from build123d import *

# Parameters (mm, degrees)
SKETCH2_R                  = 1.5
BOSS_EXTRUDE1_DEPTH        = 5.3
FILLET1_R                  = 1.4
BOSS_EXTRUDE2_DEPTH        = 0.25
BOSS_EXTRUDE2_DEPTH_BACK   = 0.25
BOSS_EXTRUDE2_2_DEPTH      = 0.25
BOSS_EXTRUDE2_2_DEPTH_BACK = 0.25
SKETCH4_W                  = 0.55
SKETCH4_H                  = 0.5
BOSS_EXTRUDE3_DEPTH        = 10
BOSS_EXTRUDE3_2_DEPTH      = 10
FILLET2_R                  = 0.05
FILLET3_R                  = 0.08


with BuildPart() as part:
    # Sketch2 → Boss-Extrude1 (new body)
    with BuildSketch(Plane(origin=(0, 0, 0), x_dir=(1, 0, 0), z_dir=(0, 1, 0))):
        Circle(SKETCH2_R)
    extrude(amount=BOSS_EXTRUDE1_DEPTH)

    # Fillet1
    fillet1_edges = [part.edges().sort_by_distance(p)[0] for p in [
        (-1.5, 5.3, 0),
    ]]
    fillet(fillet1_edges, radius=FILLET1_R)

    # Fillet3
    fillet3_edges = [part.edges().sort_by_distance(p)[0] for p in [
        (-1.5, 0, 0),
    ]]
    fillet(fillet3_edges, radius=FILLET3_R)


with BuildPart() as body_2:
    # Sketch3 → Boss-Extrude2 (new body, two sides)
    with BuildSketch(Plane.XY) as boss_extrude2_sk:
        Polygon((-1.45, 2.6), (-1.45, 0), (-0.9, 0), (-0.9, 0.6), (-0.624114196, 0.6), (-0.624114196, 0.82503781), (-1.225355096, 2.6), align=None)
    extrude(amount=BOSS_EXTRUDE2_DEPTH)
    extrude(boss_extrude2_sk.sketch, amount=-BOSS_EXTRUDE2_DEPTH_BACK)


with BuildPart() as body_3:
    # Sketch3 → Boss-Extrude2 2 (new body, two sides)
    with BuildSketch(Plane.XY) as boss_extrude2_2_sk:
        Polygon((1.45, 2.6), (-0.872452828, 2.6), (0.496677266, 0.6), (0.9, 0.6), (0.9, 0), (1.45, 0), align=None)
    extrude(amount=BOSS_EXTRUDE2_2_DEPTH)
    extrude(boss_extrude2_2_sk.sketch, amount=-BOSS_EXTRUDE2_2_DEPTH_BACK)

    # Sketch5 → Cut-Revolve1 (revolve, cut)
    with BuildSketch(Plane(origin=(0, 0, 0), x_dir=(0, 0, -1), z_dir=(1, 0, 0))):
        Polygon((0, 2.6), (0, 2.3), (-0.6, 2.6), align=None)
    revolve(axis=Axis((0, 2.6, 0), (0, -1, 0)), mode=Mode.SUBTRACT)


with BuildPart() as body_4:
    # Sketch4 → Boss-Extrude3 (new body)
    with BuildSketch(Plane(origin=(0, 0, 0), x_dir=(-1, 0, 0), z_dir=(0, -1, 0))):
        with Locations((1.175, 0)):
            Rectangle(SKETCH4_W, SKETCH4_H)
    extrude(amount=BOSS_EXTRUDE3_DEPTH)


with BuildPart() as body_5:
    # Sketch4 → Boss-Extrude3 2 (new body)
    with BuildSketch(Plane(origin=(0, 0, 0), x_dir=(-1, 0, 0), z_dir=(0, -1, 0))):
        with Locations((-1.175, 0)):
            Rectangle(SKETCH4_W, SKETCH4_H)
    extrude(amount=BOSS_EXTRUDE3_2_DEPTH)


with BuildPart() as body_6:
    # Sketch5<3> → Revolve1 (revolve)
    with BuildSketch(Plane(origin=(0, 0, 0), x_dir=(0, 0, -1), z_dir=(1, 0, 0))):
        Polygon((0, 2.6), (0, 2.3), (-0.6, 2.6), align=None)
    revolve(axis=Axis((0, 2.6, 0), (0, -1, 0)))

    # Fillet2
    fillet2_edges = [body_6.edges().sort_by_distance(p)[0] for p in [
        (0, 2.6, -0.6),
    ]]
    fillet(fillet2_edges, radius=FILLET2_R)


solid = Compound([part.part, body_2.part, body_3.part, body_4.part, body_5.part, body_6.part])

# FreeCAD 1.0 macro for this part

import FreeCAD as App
import Part
import Sketcher


def edges_at(feature, points):
    """Names of the edges that pass closest to the given points."""
    edges = feature.Shape.Edges
    near = lambda p: min(range(len(edges)), key=lambda i: edges[i].distToShape(Part.Vertex(*p))[0])
    return sorted({f"Edge{near(p) + 1}" for p in points})


def add_polygon(sketch, points):
    """Adds a closed chain of lines whose ends are joined by coincident constraints."""
    first, n = sketch.GeometryCount, len(points)
    for a, b in zip(points, points[1:] + points[:1]):
        sketch.addGeometry(Part.LineSegment(App.Vector(*a, 0), App.Vector(*b, 0)), False)
    for i in range(n):
        sketch.addConstraint(Sketcher.Constraint("Coincident", first + i, 2, first + (i + 1) % n, 1))

doc = App.newDocument("Part")
body = doc.addObject("PartDesign::Body", "Body")

# Sketch on XZ plane
sketch1 = body.newObject("Sketcher::SketchObject", "Sketch")
sketch1.AttachmentSupport = (doc.getObject("XZ_Plane"), [""])
sketch1.MapMode = "FlatFace"
sketch1.addGeometry(Part.Circle(App.Vector(0, 0, 0), App.Vector(0, 0, 1), 1.5), False)
sketch1.addConstraint([
    Sketcher.Constraint("Coincident", 0, 3, -1, 1),
    Sketcher.Constraint("Diameter", 0, 3.0),
])
pad1 = body.newObject("PartDesign::Pad", "Pad")
pad1.Profile = sketch1
pad1.Length = 5.3
pad1.Reversed = True
doc.recompute()

fillet = body.newObject("PartDesign::Fillet", "Fillet")
fillet.Base = (pad1, edges_at(pad1, [(-1.5, 5.3, 0)]))
fillet.Radius = 1.4
doc.recompute()

fillet2 = body.newObject("PartDesign::Fillet", "Fillet001")
fillet2.Base = (fillet, edges_at(fillet, [(-1.5, 0, 0)]))
fillet2.Radius = 0.08
body2 = doc.addObject("PartDesign::Body", "Body001")

# Sketch on XY plane
sketch2 = body2.newObject("Sketcher::SketchObject", "Sketch001")
sketch2.AttachmentSupport = (doc.getObject("XY_Plane001"), [""])
sketch2.MapMode = "FlatFace"
add_polygon(sketch2, [(-1.45, 2.6), (-1.45, 0), (-0.9, 0), (-0.9, 0.6), (-0.624114, 0.6), (-0.624114, 0.825038), (-1.225355, 2.6)])  # lines 0-6
sketch2.addConstraint([
    Sketcher.Constraint("Vertical", 0),
    Sketcher.Constraint("Horizontal", 1),
    Sketcher.Constraint("Vertical", 2),
    Sketcher.Constraint("Horizontal", 3),
    Sketcher.Constraint("Vertical", 4),
    Sketcher.Constraint("Horizontal", 6),
    Sketcher.Constraint("PointOnObject", 0, 2, -1),
    Sketcher.Constraint("DistanceY", 0, 2, 0, 1, 2.6),
    Sketcher.Constraint("DistanceY", 2, 1, 2, 2, 0.6),
    Sketcher.Constraint("DistanceX", 1, 1, 1, 2, 0.55),
    Sketcher.Constraint("DistanceX", 1, 2, -1, 1, 0.9),
    Sketcher.Constraint("Distance", 5, 1.874028),
    Sketcher.Constraint("DistanceX", 3, 1, 3, 2, 0.275886),
    Sketcher.Constraint("DistanceX", 6, 2, 6, 1, 0.224645),
])
pad2 = body2.newObject("PartDesign::Pad", "Pad001")
pad2.Profile = sketch2
pad2.Type = "TwoLengths"
pad2.Length = 0.25
pad2.Length2 = 0.25
body3 = doc.addObject("PartDesign::Body", "Body002")

# Sketch on XY plane
sketch3 = body3.newObject("Sketcher::SketchObject", "Sketch002")
sketch3.AttachmentSupport = (doc.getObject("XY_Plane002"), [""])
sketch3.MapMode = "FlatFace"
add_polygon(sketch3, [(1.45, 2.6), (-0.872453, 2.6), (0.496677, 0.6), (0.9, 0.6), (0.9, 0), (1.45, 0)])  # lines 0-5
sketch3.addConstraint([
    Sketcher.Constraint("Horizontal", 0),
    Sketcher.Constraint("Horizontal", 2),
    Sketcher.Constraint("Vertical", 3),
    Sketcher.Constraint("Horizontal", 4),
    Sketcher.Constraint("Vertical", 5),
    Sketcher.Constraint("PointOnObject", 3, 2, -1),
    Sketcher.Constraint("DistanceY", 3, 2, 3, 1, 0.6),
    Sketcher.Constraint("DistanceY", 5, 1, 5, 2, 2.6),
    Sketcher.Constraint("DistanceX", 4, 1, 4, 2, 0.55),
    Sketcher.Constraint("DistanceX", -1, 1, 2, 2, 0.9),
    Sketcher.Constraint("Distance", 1, 2.42374),
    Sketcher.Constraint("DistanceX", 0, 2, 0, 1, 2.322453),
])
pad3 = body3.newObject("PartDesign::Pad", "Pad002")
pad3.Profile = sketch3
pad3.Type = "TwoLengths"
pad3.Length = 0.25
pad3.Length2 = 0.25

# Sketch on YZ plane
sketch4 = body3.newObject("Sketcher::SketchObject", "Sketch003")
sketch4.AttachmentSupport = (doc.getObject("YZ_Plane002"), [""])
sketch4.MapMode = "FlatFace"
add_polygon(sketch4, [(2.3, 0), (2.6, 0), (2.6, 0.6)])  # lines 0-2
sketch4.addConstraint([
    Sketcher.Constraint("Horizontal", 0),
    Sketcher.Constraint("Vertical", 1),
    Sketcher.Constraint("PointOnObject", 0, 2, -1),
    Sketcher.Constraint("DistanceX", 0, 1, 0, 2, 0.3),
    Sketcher.Constraint("DistanceY", 1, 1, 1, 2, 0.6),
    Sketcher.Constraint("DistanceX", -1, 1, 0, 2, 2.6),
])
groove = body3.newObject("PartDesign::Groove", "Groove")
groove.Profile = sketch4
groove.ReferenceAxis = (sketch4, ["H_Axis"])
groove.Angle = 360
body4 = doc.addObject("PartDesign::Body", "Body003")

# Sketch on XZ plane
sketch5 = body4.newObject("Sketcher::SketchObject", "Sketch004")
sketch5.AttachmentSupport = (doc.getObject("XZ_Plane003"), [""])
sketch5.MapMode = "FlatFace"
add_polygon(sketch5, [(-0.9, -0.25), (-0.9, 0.25), (-1.45, 0.25), (-1.45, -0.25)])  # lines 0-3
sketch5.addConstraint([
    Sketcher.Constraint("Vertical", 0),
    Sketcher.Constraint("Horizontal", 1),
    Sketcher.Constraint("Vertical", 2),
    Sketcher.Constraint("Horizontal", 3),
    Sketcher.Constraint("DistanceY", 0, 1, 0, 2, 0.5),
    Sketcher.Constraint("DistanceX", 1, 2, 1, 1, 0.55),
    Sketcher.Constraint("DistanceX", 0, 2, -1, 1, 0.9),
    Sketcher.Constraint("DistanceY", -1, 1, 0, 2, 0.25),
])
pad4 = body4.newObject("PartDesign::Pad", "Pad003")
pad4.Profile = sketch5
pad4.Length = 10
body5 = doc.addObject("PartDesign::Body", "Body004")

# Sketch on XZ plane
sketch6 = body5.newObject("Sketcher::SketchObject", "Sketch005")
sketch6.AttachmentSupport = (doc.getObject("XZ_Plane004"), [""])
sketch6.MapMode = "FlatFace"
add_polygon(sketch6, [(1.45, -0.25), (1.45, 0.25), (0.9, 0.25), (0.9, -0.25)])  # lines 0-3
sketch6.addConstraint([
    Sketcher.Constraint("Vertical", 0),
    Sketcher.Constraint("Horizontal", 1),
    Sketcher.Constraint("Vertical", 2),
    Sketcher.Constraint("Horizontal", 3),
    Sketcher.Constraint("DistanceY", 0, 1, 0, 2, 0.5),
    Sketcher.Constraint("DistanceX", 1, 2, 1, 1, 0.55),
    Sketcher.Constraint("DistanceX", -1, 1, 1, 2, 0.9),
    Sketcher.Constraint("DistanceY", -1, 1, 0, 2, 0.25),
])
pad5 = body5.newObject("PartDesign::Pad", "Pad004")
pad5.Profile = sketch6
pad5.Length = 10
body6 = doc.addObject("PartDesign::Body", "Body005")

# Sketch on YZ plane
sketch7 = body6.newObject("Sketcher::SketchObject", "Sketch006")
sketch7.AttachmentSupport = (doc.getObject("YZ_Plane005"), [""])
sketch7.MapMode = "FlatFace"
add_polygon(sketch7, [(2.3, 0), (2.6, 0), (2.6, 0.6)])  # lines 0-2
sketch7.addConstraint([
    Sketcher.Constraint("Horizontal", 0),
    Sketcher.Constraint("Vertical", 1),
    Sketcher.Constraint("PointOnObject", 0, 2, -1),
    Sketcher.Constraint("DistanceX", 0, 1, 0, 2, 0.3),
    Sketcher.Constraint("DistanceY", 1, 1, 1, 2, 0.6),
    Sketcher.Constraint("DistanceX", -1, 1, 0, 2, 2.6),
])
revolution = body6.newObject("PartDesign::Revolution", "Revolution")
revolution.Profile = sketch7
revolution.ReferenceAxis = (sketch7, ["H_Axis"])
revolution.Angle = 360
doc.recompute()

fillet3 = body6.newObject("PartDesign::Fillet", "Fillet002")
fillet3.Base = (revolution, edges_at(revolution, [(0, 2.6, -0.6)]))
fillet3.Radius = 0.05

doc.recompute()
